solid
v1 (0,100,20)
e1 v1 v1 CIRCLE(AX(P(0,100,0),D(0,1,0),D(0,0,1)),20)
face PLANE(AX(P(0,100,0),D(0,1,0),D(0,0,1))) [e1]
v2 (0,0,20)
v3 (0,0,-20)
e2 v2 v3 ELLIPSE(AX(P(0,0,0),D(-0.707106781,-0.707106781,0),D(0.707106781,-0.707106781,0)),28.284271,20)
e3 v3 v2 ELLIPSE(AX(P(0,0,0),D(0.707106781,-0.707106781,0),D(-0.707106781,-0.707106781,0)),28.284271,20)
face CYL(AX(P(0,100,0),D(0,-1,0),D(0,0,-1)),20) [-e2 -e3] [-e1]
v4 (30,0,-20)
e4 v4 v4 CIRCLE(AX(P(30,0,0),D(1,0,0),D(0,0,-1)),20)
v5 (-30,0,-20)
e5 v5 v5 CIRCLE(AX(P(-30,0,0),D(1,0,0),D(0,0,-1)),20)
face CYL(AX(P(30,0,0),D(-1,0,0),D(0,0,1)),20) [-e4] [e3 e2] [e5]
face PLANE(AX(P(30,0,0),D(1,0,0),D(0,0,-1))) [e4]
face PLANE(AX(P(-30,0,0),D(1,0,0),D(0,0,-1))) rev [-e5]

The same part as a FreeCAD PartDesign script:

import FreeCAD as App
import Part
import Sketcher

doc = App.newDocument("Part")
params = doc.addObject("Spreadsheet::Sheet", "Params")
for row, (alias, value) in enumerate([
    ("sketch1_diameter", "40 mm"),
    ("pad1_length", "100 mm"),
    ("sketch2_diameter", "40 mm"),
    ("pad2_length", "60 mm"),
], start=1):
    params.set(f"A{row}", alias)
    params.set(f"B{row}", "=" + value)
    params.setAlias(f"B{row}", alias)

body = doc.addObject("PartDesign::Body", "Body")

sketch1 = body.newObject("Sketcher::SketchObject", "Sketch")
sketch1.AttachmentSupport = (doc.getObject("XZ_Plane"), [""])
sketch1.MapMode = "FlatFace"
sketch1.addGeometry(Part.Circle(App.Vector(0, 0, 0), App.Vector(0, 0, 1), 20), False)
sketch1.addConstraint([
    Sketcher.Constraint("Coincident", 0, 3, -1, 1),
    Sketcher.Constraint("Diameter", 0, 40.0),
])
sketch1.setExpression("Constraints[1]", "Params.sketch1_diameter")
pad1 = body.newObject("PartDesign::Pad", "Pad")
pad1.Profile = sketch1
pad1.setExpression("Length", "Params.pad1_length")
pad1.Reversed = True

sketch2 = body.newObject("Sketcher::SketchObject", "Sketch001")
sketch2.AttachmentSupport = (doc.getObject("YZ_Plane"), [""])
sketch2.MapMode = "FlatFace"
sketch2.addGeometry(Part.Circle(App.Vector(0, 0, 0), App.Vector(0, 0, 1), 20), False)
sketch2.addConstraint([
    Sketcher.Constraint("Coincident", 0, 3, -1, 1),
    Sketcher.Constraint("Diameter", 0, 40.0),
])
sketch2.setExpression("Constraints[1]", "Params.sketch2_diameter")
pad2 = body.newObject("PartDesign::Pad", "Pad001")
pad2.Profile = sketch2
pad2.setExpression("Length", "Params.pad2_length")
pad2.Midplane = True

doc.recompute()
